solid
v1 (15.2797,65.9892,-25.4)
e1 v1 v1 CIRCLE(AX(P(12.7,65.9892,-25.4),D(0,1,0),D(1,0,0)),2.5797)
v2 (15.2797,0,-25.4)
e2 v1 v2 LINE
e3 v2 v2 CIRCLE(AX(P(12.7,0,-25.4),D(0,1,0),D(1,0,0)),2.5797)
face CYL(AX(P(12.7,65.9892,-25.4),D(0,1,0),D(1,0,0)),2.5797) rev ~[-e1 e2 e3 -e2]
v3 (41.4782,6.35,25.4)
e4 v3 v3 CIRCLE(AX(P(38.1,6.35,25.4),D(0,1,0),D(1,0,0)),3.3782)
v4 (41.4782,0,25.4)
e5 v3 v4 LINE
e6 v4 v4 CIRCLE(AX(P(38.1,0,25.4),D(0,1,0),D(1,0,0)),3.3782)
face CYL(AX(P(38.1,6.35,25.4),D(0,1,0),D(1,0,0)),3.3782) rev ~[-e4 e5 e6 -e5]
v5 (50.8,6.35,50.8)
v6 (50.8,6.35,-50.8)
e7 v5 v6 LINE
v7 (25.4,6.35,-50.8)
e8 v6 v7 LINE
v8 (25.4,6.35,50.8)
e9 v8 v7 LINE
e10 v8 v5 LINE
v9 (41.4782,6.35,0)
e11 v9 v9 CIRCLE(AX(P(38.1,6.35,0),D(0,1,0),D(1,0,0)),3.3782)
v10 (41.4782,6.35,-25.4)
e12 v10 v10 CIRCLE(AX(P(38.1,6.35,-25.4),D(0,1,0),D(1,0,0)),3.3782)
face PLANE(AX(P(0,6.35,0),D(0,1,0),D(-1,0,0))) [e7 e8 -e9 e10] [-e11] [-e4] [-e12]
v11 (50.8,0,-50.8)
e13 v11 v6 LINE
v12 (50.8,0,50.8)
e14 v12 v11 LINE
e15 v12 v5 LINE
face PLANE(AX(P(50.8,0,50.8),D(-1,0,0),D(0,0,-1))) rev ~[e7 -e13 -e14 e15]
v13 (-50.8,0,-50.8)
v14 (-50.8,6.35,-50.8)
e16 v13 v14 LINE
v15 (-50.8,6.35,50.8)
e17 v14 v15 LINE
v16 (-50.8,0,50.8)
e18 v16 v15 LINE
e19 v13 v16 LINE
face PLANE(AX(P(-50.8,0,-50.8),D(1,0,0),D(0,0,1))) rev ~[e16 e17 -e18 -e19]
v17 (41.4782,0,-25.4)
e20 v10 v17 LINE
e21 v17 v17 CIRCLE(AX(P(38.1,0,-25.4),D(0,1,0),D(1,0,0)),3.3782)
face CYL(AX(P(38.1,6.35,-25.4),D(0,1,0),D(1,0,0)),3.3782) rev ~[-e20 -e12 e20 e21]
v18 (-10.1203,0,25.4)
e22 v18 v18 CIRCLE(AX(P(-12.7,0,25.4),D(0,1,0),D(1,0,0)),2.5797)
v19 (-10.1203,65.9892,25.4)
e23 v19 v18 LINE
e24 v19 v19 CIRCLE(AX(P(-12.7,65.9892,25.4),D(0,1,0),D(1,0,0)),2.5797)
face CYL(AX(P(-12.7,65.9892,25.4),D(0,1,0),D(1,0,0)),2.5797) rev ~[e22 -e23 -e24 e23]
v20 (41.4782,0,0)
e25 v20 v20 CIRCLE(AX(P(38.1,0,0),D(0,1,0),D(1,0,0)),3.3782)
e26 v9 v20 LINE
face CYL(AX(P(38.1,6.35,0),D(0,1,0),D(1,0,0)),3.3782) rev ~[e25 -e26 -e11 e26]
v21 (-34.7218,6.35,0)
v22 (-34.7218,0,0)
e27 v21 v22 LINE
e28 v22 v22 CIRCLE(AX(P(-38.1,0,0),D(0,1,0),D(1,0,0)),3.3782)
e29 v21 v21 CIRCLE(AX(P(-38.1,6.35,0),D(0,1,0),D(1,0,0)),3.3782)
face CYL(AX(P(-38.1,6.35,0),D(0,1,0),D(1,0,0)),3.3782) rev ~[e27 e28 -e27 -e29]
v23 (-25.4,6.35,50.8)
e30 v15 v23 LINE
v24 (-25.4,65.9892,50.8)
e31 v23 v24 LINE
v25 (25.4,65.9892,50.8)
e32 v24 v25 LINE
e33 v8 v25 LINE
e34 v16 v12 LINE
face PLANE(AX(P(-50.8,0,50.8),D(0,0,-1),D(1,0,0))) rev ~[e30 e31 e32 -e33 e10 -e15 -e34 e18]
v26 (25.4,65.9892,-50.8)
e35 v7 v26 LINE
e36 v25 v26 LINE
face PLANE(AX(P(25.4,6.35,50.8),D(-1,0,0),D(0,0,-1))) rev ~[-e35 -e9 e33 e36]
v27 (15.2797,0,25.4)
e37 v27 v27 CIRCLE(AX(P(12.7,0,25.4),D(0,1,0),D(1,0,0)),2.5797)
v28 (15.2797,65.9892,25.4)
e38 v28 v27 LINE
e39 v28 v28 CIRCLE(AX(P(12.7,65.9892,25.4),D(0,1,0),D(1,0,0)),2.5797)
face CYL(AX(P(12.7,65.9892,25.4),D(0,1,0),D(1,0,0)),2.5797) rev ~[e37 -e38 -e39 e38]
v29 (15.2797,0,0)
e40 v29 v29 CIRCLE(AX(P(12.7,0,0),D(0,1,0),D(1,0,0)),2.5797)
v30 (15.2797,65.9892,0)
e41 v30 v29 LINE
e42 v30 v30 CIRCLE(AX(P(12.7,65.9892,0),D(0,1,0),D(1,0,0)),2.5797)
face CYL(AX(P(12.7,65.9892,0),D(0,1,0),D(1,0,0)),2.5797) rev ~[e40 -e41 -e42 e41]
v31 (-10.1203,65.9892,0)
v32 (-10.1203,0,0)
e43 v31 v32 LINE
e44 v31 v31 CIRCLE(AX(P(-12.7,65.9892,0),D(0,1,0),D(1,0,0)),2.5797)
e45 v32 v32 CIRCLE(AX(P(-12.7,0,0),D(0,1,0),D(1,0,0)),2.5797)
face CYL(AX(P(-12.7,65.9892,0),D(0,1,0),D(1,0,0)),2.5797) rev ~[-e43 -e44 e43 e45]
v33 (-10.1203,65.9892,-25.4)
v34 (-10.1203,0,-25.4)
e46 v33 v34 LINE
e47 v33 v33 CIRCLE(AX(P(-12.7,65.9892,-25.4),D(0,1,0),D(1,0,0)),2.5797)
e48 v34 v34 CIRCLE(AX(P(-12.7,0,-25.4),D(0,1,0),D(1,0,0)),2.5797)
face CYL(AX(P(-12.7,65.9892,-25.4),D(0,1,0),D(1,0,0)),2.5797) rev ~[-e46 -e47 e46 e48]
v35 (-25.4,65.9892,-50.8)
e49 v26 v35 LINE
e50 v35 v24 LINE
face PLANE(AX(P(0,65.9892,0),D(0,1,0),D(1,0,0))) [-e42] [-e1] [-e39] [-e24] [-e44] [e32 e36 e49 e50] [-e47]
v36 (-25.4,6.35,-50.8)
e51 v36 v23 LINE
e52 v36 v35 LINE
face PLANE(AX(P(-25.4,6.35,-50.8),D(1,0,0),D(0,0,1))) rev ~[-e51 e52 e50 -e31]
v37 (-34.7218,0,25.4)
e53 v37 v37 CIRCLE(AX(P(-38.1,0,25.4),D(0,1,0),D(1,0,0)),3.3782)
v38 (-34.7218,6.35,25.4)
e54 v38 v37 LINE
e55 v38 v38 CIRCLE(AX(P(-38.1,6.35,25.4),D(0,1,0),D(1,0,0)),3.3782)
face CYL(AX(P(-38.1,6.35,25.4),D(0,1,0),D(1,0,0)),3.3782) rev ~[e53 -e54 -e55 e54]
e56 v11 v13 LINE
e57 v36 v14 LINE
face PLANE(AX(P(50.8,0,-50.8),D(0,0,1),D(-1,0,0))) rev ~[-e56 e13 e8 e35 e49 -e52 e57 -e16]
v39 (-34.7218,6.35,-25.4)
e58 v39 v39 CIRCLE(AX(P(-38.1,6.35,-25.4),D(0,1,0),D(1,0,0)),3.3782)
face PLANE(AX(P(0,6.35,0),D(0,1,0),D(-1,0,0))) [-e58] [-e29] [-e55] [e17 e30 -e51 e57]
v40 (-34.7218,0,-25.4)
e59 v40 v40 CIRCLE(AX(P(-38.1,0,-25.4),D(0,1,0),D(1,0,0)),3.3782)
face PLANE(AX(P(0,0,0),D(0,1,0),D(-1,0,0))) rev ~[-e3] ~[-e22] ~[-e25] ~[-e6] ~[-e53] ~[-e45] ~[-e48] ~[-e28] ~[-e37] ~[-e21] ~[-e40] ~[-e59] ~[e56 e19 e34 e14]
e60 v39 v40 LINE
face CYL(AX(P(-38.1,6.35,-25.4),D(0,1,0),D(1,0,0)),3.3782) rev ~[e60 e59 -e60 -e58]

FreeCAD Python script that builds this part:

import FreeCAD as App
import Part
import Sketcher

V = App.Vector
Q = App.Units.Quantity

doc = App.newDocument("Part")
body = doc.addObject("PartDesign::Body", "Body")

# Sketch on XZ plane
sketch1 = body.newObject("Sketcher::SketchObject", "Sketch")
sketch1.AttachmentSupport = (doc.getObject("XZ_Plane"), [""])
sketch1.MapMode = "FlatFace"
sketch1.addGeometry([
    Part.LineSegment(V(-50.8, -50.8, 0), V(-50.8, 50.8, 0)),
    Part.LineSegment(V(-50.8, 50.8, 0), V(50.8, 50.8, 0)),
    Part.LineSegment(V(50.8, 50.8, 0), V(50.8, -50.8, 0)),
    Part.LineSegment(V(50.8, -50.8, 0), V(-50.8, -50.8, 0)),
], False)
sketch1.addConstraint([
    Sketcher.Constraint("Coincident", 0, 2, 1, 1),
    Sketcher.Constraint("Coincident", 1, 2, 2, 1),
    Sketcher.Constraint("Coincident", 2, 2, 3, 1),
    Sketcher.Constraint("Coincident", 3, 2, 0, 1),
    Sketcher.Constraint("Vertical", 0),
    Sketcher.Constraint("Horizontal", 1),
    Sketcher.Constraint("Vertical", 2),
    Sketcher.Constraint("Horizontal", 3),
    Sketcher.Constraint("Symmetric", 0, 2, 2, 2, -1, 1),
    Sketcher.Constraint("Equal", 3, 0),
    Sketcher.Constraint("DistanceX", 1, 1, 1, 2, Q("4 in")),
])
pad1 = body.newObject("PartDesign::Pad", "Pad")
pad1.Profile = sketch1
pad1.Length = Q("0.25 in")
pad1.Reversed = True

# Sketch on XZ plane
sketch2 = body.newObject("Sketcher::SketchObject", "Sketch001")
sketch2.AttachmentSupport = (doc.getObject("XZ_Plane"), [""])
sketch2.MapMode = "FlatFace"
sketch2.AttachmentOffset = App.Placement(V(0, 0, -0.25 * 25.4), App.Rotation())
sketch2.addGeometry([
    Part.LineSegment(V(-25.4, -50.8, 0), V(-25.4, 50.8, 0)),
    Part.LineSegment(V(-25.4, 50.8, 0), V(25.4, 50.8, 0)),
    Part.LineSegment(V(25.4, 50.8, 0), V(25.4, -50.8, 0)),
    Part.LineSegment(V(25.4, -50.8, 0), V(-25.4, -50.8, 0)),
], False)
sketch2.addConstraint([
    Sketcher.Constraint("Coincident", 0, 2, 1, 1),
    Sketcher.Constraint("Coincident", 1, 2, 2, 1),
    Sketcher.Constraint("Coincident", 2, 2, 3, 1),
    Sketcher.Constraint("Coincident", 3, 2, 0, 1),
    Sketcher.Constraint("Vertical", 0),
    Sketcher.Constraint("Horizontal", 1),
    Sketcher.Constraint("Vertical", 2),
    Sketcher.Constraint("Horizontal", 3),
    Sketcher.Constraint("Symmetric", 0, 2, 2, 2, -1, 1),
    Sketcher.Constraint("DistanceX", 1, 1, 1, 2, Q("2 in")),
    Sketcher.Constraint("DistanceY", 0, 1, 0, 2, Q("4 in")),
])
pad2 = body.newObject("PartDesign::Pad", "Pad001")
pad2.Profile = sketch2
pad2.Length = Q("2.348 in")
pad2.Reversed = True

# Sketch on XZ plane
sketch3 = body.newObject("Sketcher::SketchObject", "Sketch002")
sketch3.AttachmentSupport = (doc.getObject("XZ_Plane"), [""])
sketch3.MapMode = "FlatFace"
sketch3.AttachmentOffset = App.Placement(V(0, 0, -2.598 * 25.4), App.Rotation())
sketch3.addGeometry([
    Part.Circle(V(-12.7, 25.4, 0), V(0, 0, 1), 2.5797),  # 0
    Part.Circle(V(-12.7, 0, 0), V(0, 0, 1), 2.5797),  # 1
    Part.Circle(V(-12.7, -25.4, 0), V(0, 0, 1), 2.5797),  # 2
    Part.Circle(V(12.7, 25.4, 0), V(0, 0, 1), 2.5797),  # 3
    Part.Circle(V(12.7, 0, 0), V(0, 0, 1), 2.5797),  # 4
    Part.Circle(V(12.7, -25.4, 0), V(0, 0, 1), 2.5797),  # 5
], False)
sketch3.addConstraint([
    Sketcher.Constraint("Equal", 0, 1),
    Sketcher.Constraint("Equal", 1, 2),
    Sketcher.Constraint("Equal", 2, 3),
    Sketcher.Constraint("Equal", 3, 4),
    Sketcher.Constraint("Equal", 4, 5),
    Sketcher.Constraint("Symmetric", 2, 3, 3, 3, -1, 1),
    Sketcher.Constraint("Symmetric", 1, 3, 4, 3, -1, 1),
    Sketcher.Constraint("Symmetric", 0, 3, 5, 3, -1, 1),
    Sketcher.Constraint("Symmetric", 0, 3, 3, 3, -2),
    Sketcher.Constraint("PointOnObject", 1, 3, -1),
    Sketcher.Constraint("Vertical", 0, 3, 1, 3),
    Sketcher.Constraint("Diameter", 0, Q("0.203126 in")),
    Sketcher.Constraint("DistanceY", -1, 1, 0, 3, Q("1 in")),
    Sketcher.Constraint("DistanceX", 0, 3, 3, 3, Q("1 in")),
])
pocket1 = body.newObject("PartDesign::Pocket", "Pocket")
pocket1.Profile = sketch3
pocket1.Type = "ThroughAll"
pocket1.Reversed = True

# Sketch on XZ plane
sketch4 = body.newObject("Sketcher::SketchObject", "Sketch003")
sketch4.AttachmentSupport = (doc.getObject("XZ_Plane"), [""])
sketch4.MapMode = "FlatFace"
sketch4.AttachmentOffset = App.Placement(V(0, 0, -0.25 * 25.4), App.Rotation())
sketch4.addGeometry([
    Part.Circle(V(-38.1, 25.4, 0), V(0, 0, 1), 3.3782),  # 0
    Part.Circle(V(-38.1, 0, 0), V(0, 0, 1), 3.3782),  # 1
    Part.Circle(V(-38.1, -25.4, 0), V(0, 0, 1), 3.3782),  # 2
    Part.Circle(V(38.1, 25.4, 0), V(0, 0, 1), 3.3782),  # 3
    Part.Circle(V(38.1, 0, 0), V(0, 0, 1), 3.3782),  # 4
    Part.Circle(V(38.1, -25.4, 0), V(0, 0, 1), 3.3782),  # 5
], False)
sketch4.addConstraint([
    Sketcher.Constraint("Equal", 0, 1),
    Sketcher.Constraint("Equal", 1, 2),
    Sketcher.Constraint("Equal", 2, 3),
    Sketcher.Constraint("Equal", 3, 4),
    Sketcher.Constraint("Equal", 4, 5),
    Sketcher.Constraint("Symmetric", 2, 3, 3, 3, -1, 1),
    Sketcher.Constraint("Symmetric", 1, 3, 4, 3, -1, 1),
    Sketcher.Constraint("Symmetric", 0, 3, 5, 3, -1, 1),
    Sketcher.Constraint("Symmetric", 0, 3, 3, 3, -2),
    Sketcher.Constraint("PointOnObject", 1, 3, -1),
    Sketcher.Constraint("Vertical", 0, 3, 1, 3),
    Sketcher.Constraint("Diameter", 0, Q("0.266 in")),
    Sketcher.Constraint("DistanceY", -1, 1, 0, 3, Q("1 in")),
    Sketcher.Constraint("DistanceX", 0, 3, 3, 3, Q("3 in")),
])
pocket2 = body.newObject("PartDesign::Pocket", "Pocket001")
pocket2.Profile = sketch4
pocket2.Type = "ThroughAll"
pocket2.Reversed = True

doc.recompute()
